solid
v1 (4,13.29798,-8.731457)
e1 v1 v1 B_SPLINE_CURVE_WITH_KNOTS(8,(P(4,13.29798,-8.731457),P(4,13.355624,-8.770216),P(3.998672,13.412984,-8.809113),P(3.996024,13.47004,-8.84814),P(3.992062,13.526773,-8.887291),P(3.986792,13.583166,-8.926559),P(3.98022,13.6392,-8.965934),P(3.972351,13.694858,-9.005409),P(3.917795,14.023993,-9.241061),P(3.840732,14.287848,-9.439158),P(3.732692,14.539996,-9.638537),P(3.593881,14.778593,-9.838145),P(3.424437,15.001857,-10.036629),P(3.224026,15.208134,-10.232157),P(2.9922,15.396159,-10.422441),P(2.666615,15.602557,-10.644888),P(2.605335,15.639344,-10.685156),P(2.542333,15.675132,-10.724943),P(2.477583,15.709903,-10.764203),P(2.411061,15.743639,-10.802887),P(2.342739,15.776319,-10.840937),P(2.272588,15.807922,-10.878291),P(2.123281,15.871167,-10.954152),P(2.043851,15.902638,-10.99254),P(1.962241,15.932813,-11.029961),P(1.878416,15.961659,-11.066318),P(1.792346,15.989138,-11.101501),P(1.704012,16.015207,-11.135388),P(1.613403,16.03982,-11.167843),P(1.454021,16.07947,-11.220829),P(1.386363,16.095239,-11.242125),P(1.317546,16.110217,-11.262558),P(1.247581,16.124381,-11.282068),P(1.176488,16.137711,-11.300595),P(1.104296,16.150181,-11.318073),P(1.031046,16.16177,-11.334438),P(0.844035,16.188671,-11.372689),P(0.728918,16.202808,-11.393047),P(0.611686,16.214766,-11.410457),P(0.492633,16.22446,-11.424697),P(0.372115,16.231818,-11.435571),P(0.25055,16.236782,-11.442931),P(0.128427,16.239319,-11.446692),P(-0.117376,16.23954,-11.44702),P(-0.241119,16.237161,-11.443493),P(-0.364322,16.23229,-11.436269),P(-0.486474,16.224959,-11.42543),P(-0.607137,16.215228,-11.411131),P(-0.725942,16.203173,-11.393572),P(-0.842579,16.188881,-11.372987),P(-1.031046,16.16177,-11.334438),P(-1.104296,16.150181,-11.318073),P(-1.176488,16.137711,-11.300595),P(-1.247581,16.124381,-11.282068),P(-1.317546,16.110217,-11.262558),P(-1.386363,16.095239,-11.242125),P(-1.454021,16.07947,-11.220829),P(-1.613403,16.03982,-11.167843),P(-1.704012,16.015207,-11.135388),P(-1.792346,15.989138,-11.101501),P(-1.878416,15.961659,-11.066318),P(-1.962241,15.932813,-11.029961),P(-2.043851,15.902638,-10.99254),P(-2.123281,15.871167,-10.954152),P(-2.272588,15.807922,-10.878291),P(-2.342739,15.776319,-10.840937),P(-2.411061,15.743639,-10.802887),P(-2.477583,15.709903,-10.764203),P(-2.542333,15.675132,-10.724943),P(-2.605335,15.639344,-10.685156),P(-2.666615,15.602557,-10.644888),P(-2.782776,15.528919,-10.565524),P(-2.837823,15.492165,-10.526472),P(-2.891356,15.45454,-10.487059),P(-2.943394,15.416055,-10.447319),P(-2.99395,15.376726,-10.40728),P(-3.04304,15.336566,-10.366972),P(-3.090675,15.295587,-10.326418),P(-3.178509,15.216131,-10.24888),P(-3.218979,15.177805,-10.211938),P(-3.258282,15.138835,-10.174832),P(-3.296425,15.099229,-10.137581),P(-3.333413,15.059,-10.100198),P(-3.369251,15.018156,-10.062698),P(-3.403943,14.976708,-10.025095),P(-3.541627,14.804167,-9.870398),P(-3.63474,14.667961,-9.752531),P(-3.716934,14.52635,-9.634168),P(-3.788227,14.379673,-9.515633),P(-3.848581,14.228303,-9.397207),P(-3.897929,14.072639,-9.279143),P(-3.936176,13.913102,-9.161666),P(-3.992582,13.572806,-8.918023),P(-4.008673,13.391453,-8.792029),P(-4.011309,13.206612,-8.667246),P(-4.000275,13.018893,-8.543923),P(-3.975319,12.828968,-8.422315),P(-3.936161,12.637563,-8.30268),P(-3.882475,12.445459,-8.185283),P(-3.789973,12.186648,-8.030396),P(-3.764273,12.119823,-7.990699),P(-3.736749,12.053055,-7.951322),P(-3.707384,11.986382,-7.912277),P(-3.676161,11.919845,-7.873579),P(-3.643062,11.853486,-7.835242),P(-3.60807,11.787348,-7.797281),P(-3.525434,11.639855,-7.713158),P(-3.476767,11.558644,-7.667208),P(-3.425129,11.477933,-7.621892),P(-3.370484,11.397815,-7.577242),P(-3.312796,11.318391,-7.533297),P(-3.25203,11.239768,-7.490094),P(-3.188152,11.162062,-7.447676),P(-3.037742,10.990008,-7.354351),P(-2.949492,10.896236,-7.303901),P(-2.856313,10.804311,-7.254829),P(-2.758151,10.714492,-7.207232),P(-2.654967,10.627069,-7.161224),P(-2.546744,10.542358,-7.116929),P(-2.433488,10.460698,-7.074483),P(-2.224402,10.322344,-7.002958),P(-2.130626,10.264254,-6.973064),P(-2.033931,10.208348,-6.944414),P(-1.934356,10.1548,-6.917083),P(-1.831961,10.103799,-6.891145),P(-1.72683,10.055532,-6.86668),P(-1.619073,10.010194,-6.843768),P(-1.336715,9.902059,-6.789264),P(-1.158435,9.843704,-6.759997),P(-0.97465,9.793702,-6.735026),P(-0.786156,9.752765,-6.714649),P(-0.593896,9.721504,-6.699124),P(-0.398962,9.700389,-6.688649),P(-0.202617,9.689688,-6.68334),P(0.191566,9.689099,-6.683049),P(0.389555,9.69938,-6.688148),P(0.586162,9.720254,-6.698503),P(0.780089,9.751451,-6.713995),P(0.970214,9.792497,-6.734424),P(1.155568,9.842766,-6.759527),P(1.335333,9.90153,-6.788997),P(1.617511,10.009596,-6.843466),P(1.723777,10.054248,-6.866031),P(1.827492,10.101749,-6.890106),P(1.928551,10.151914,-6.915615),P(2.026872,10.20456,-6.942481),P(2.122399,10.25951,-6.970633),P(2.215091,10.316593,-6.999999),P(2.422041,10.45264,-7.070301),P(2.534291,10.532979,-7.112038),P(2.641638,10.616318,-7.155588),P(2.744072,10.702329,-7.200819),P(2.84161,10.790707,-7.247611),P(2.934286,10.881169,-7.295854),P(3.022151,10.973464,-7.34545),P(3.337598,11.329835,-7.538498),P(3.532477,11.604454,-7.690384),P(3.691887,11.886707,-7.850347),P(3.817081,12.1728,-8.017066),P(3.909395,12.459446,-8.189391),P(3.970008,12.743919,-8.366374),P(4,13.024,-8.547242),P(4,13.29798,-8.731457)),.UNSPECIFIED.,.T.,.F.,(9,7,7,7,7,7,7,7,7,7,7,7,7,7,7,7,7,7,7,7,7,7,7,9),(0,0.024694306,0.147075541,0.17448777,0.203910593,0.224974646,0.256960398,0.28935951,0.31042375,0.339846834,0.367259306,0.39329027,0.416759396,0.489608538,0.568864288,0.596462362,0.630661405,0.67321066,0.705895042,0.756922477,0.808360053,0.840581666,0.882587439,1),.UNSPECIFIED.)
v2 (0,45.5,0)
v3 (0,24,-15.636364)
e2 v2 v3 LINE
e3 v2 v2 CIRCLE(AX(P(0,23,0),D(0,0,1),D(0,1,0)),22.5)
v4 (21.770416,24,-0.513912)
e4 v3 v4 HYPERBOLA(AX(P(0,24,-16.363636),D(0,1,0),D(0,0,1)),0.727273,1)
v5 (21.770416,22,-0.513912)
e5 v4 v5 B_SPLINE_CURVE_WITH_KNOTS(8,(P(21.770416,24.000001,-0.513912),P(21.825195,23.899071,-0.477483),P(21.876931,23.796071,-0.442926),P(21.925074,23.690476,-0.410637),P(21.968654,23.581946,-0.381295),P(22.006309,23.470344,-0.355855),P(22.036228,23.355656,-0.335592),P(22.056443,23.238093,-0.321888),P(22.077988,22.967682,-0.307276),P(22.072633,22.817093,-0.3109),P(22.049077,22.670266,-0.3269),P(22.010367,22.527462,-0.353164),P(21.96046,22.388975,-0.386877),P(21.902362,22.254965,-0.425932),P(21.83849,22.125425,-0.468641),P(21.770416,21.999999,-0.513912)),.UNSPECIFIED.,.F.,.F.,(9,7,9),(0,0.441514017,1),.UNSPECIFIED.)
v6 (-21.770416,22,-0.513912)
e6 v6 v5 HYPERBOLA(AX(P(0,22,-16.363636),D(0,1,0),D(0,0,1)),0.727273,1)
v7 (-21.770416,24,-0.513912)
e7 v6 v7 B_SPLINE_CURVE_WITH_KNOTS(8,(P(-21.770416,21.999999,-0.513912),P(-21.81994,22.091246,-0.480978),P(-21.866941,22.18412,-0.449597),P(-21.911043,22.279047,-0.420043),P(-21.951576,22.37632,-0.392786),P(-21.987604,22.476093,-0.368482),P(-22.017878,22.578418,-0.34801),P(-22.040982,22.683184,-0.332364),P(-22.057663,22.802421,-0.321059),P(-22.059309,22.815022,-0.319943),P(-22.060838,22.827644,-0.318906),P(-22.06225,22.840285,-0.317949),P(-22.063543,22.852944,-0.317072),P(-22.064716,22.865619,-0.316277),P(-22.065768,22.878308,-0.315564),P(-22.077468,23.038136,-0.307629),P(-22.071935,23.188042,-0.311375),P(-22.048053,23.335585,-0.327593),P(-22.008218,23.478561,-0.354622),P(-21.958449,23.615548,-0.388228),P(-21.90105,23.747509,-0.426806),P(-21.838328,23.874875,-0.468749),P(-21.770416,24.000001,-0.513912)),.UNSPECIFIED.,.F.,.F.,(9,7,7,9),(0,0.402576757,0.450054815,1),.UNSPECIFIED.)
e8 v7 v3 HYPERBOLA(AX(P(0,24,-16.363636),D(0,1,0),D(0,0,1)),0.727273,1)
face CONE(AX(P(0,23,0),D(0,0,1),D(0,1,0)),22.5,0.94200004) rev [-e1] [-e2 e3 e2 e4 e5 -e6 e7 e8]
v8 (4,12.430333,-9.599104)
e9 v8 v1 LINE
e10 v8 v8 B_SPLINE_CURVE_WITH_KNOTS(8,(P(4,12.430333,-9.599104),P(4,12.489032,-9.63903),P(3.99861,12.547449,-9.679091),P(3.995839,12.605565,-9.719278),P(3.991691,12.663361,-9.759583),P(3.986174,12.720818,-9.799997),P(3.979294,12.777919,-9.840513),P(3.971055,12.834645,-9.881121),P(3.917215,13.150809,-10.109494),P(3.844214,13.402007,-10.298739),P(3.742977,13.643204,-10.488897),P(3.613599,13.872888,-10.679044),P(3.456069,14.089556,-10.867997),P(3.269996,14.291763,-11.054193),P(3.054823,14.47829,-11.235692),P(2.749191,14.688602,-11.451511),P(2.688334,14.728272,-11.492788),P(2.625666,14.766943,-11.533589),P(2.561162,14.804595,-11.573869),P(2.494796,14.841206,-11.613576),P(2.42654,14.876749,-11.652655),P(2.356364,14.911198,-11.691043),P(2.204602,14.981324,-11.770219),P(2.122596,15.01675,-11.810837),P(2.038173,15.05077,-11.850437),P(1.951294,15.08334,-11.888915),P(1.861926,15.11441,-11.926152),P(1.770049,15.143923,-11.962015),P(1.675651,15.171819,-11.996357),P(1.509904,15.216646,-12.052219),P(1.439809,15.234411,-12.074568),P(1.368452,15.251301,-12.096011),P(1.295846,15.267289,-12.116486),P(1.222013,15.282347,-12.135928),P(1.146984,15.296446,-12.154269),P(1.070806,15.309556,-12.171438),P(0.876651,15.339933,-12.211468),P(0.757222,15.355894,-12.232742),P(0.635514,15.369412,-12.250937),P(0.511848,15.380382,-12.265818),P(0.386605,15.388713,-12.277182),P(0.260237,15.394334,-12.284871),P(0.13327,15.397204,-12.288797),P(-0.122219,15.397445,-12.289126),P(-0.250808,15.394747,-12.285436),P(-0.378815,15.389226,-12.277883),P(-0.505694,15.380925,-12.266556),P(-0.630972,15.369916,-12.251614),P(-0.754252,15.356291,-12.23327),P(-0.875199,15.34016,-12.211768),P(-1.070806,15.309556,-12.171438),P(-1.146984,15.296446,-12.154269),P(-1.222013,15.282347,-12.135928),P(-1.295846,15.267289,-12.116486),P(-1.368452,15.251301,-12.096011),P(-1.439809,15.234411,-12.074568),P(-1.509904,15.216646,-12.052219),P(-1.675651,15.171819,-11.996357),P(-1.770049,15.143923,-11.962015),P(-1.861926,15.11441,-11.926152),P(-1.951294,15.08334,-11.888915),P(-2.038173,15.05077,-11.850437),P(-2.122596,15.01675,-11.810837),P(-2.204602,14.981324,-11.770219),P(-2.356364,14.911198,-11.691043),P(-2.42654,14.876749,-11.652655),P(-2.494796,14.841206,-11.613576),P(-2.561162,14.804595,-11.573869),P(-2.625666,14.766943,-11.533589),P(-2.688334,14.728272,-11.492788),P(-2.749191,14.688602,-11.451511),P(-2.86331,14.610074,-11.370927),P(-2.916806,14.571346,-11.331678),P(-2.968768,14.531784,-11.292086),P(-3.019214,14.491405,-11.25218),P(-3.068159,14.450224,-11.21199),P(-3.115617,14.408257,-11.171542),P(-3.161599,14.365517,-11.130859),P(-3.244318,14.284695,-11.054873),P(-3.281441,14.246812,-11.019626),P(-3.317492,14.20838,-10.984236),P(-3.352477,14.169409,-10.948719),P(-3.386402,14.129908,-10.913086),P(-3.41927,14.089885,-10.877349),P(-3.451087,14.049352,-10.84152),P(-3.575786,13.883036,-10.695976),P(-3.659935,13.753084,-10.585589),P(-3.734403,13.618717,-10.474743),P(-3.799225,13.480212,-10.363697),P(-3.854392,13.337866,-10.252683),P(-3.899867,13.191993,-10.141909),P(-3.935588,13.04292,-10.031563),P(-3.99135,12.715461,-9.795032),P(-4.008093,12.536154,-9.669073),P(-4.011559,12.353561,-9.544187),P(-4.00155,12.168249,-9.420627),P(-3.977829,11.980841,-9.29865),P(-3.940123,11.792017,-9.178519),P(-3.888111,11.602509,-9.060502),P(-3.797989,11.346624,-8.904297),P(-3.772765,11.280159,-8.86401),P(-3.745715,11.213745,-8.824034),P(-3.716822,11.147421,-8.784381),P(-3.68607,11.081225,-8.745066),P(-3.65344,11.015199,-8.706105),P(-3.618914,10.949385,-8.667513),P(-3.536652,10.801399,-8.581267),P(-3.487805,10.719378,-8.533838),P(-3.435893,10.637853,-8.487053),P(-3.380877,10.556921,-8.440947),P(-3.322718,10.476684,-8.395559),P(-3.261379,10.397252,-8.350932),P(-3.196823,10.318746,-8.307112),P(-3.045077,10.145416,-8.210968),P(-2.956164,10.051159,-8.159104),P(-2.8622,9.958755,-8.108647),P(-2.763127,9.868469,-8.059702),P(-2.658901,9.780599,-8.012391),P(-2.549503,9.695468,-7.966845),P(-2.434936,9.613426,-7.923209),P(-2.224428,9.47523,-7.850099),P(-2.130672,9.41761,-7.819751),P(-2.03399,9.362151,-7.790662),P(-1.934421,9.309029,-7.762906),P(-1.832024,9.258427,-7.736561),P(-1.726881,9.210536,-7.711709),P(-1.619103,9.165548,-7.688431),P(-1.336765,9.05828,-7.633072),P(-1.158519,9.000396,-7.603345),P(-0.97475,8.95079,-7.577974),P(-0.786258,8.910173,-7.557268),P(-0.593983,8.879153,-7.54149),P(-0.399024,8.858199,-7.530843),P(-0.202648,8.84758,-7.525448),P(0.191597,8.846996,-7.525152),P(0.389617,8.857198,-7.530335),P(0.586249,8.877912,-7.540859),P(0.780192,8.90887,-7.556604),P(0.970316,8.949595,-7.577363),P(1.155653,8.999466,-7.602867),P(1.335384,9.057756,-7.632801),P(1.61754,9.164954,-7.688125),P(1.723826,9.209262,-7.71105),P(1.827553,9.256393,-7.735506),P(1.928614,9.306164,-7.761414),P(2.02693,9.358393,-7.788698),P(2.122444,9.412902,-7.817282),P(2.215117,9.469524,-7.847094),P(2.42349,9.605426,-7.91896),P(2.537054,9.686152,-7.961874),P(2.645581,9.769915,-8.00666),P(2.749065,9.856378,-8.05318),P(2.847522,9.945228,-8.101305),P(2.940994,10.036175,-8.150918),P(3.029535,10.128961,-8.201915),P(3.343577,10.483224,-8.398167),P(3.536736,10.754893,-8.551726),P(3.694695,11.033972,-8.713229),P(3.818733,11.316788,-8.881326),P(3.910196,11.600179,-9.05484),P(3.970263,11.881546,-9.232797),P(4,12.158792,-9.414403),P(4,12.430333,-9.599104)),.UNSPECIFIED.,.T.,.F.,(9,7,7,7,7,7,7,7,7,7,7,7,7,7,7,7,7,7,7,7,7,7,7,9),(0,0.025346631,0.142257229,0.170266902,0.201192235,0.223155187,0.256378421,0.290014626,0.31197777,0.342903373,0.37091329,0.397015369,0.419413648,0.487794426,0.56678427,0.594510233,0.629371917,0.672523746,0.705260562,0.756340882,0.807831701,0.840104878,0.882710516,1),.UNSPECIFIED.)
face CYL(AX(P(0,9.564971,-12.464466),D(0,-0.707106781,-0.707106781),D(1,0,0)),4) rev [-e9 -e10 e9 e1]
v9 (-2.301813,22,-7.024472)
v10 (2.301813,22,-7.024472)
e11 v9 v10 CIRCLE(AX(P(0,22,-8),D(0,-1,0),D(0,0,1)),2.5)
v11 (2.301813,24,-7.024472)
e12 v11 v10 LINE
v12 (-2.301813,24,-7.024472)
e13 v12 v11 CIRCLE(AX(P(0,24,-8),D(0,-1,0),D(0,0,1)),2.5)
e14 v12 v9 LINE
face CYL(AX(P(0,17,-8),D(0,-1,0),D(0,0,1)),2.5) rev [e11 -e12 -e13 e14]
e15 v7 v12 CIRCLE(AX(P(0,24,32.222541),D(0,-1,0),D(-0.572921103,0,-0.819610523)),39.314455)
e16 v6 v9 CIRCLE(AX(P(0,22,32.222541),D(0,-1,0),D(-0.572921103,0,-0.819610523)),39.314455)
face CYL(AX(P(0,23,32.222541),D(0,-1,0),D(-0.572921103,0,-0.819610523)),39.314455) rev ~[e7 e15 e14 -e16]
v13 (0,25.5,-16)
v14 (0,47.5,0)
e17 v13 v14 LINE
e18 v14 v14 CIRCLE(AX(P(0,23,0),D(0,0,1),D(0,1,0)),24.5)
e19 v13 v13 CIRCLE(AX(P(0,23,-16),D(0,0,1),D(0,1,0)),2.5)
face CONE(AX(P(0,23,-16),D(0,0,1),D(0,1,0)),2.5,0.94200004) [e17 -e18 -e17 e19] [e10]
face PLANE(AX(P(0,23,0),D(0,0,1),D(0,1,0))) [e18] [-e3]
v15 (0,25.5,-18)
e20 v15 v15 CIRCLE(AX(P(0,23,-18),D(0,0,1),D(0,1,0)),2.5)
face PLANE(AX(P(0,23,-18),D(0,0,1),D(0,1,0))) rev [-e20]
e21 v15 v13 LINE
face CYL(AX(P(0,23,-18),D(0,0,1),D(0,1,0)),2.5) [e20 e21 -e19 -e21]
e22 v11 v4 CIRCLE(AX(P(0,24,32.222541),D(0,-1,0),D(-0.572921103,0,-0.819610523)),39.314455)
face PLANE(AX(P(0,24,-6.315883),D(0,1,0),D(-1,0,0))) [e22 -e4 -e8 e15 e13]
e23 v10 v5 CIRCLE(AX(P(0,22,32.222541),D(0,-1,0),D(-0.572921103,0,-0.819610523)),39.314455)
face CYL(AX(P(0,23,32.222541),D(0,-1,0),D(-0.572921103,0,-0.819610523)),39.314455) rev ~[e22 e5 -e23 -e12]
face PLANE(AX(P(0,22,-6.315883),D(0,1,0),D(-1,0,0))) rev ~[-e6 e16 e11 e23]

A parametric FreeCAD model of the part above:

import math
import FreeCAD as App
import Part
import Sketcher

V = App.Vector

doc = App.newDocument("Part")
body = doc.addObject("PartDesign::Body", "Body")

# Sketch on XY plane
sketch1 = body.newObject("Sketcher::SketchObject", "Sketch")
sketch1.AttachmentSupport = (doc.getObject("XY_Plane"), [""])
sketch1.MapMode = "FlatFace"
sketch1.addGeometry(Part.Circle(V(0, 0, 0), V(0, 0, 1), 4), False)
sketch1.addConstraint([
    Sketcher.Constraint("Coincident", 0, 3, -1, 1),
    Sketcher.Constraint("Diameter", 0, 8.0),
])
pad1 = body.newObject("PartDesign::Pad", "Pad")
pad1.Profile = sketch1
pad1.Length = 10
body2 = doc.addObject("PartDesign::Body", "Body001")
doc.recompute()

body.Placement = App.Placement(V(0, -13.435029, 5.535534), App.Rotation(V(-1, 0, 0), 45))
boolean = body2.newObject("PartDesign::Boolean", "Boolean")
boolean.Type = "Fuse"
boolean.addObjects([body])
body3 = doc.addObject("PartDesign::Body", "Body002")

# Sketch on XZ plane
sketch2 = body3.newObject("Sketcher::SketchObject", "Sketch001")
sketch2.AttachmentSupport = (doc.getObject("XZ_Plane002"), [""])
sketch2.MapMode = "FlatFace"
sketch2.AttachmentOffset = App.Placement(V(0, 0, 6), App.Rotation())
sketch2.addGeometry(Part.Circle(V(0, 10, 0), V(0, 0, 1), 2.5), False)
sketch2.addConstraint([
    Sketcher.Constraint("PointOnObject", 0, 3, -2),
    Sketcher.Constraint("Diameter", 0, 5.0),
    Sketcher.Constraint("DistanceY", -1, 1, 0, 3, 10.0),
])
pad2 = body3.newObject("PartDesign::Pad", "Pad001")
pad2.Profile = sketch2
pad2.Length = 10
pad2.Reversed = True
body4 = doc.addObject("PartDesign::Body", "Body003")

# Sketch on XZ plane
sketch3 = body4.newObject("Sketcher::SketchObject", "Sketch002")
sketch3.AttachmentSupport = (doc.getObject("XZ_Plane003"), [""])
sketch3.MapMode = "FlatFace"
sketch3.addGeometry([
    Part.LineSegment(V(0.5, 2, 0), V(22.5, 18, 0)),
    Part.ArcOfCircle(Part.Circle(V(0, 50.2, 0), V(0, 0, 1), 39.3), math.radians(-125), math.radians(-55)),
    Part.LineSegment(V(-22.5, 18, 0), V(-0.5, 2, 0)),
    Part.LineSegment(V(-0.5, 2, 0), V(0.5, 2, 0)),
], False)
sketch3.addConstraint([
    Sketcher.Constraint("Coincident", 0, 2, 1, 2),
    Sketcher.Constraint("Coincident", 1, 1, 2, 1),
    Sketcher.Constraint("Coincident", 2, 2, 3, 1),
    Sketcher.Constraint("Coincident", 3, 2, 0, 1),
    Sketcher.Constraint("Horizontal", 3),
    Sketcher.Constraint("Symmetric", 0, 2, 1, 1, -2),
    Sketcher.Constraint("Equal", 0, 2),
    Sketcher.Constraint("DistanceX", 3, 1, 3, 2, 1.0),
    Sketcher.Constraint("DistanceY", -1, 1, 0, 2, 18.0),
    Sketcher.Constraint("DistanceY", -1, 1, 2, 2, 2.0),
    Sketcher.Constraint("Radius", 1, 39.314455),
    Sketcher.Constraint("Distance", 0, 27.22242),
])
pad3 = body4.newObject("PartDesign::Pad", "Pad002")
pad3.Profile = sketch3
pad3.Length = 2
pad3.Midplane = True
doc.recompute()

boolean2 = body4.newObject("PartDesign::Boolean", "Boolean001")
boolean2.Type = "Cut"
boolean2.addObjects([body3])
body5 = doc.addObject("PartDesign::Body", "Body004")

# Sketch on YZ plane
sketch4 = body5.newObject("Sketcher::SketchObject", "Sketch003")
sketch4.AttachmentSupport = (doc.getObject("YZ_Plane004"), [""])
sketch4.MapMode = "FlatFace"
sketch4.addGeometry([
    Part.LineSegment(V(0, 2, 0), V(0, 0, 0)),  # 0
    Part.LineSegment(V(0, 0, 0), V(2.5, 0, 0)),  # 1
    Part.LineSegment(V(2.5, 0, 0), V(2.5, 2, 0)),  # 2
    Part.LineSegment(V(2.5, 2, 0), V(24.5, 18, 0)),  # 3
    Part.LineSegment(V(24.5, 18, 0), V(22.5, 18, 0)),  # 4
    Part.LineSegment(V(22.5, 18, 0), V(0.5, 2, 0)),  # 5
    Part.LineSegment(V(0.5, 2, 0), V(0, 2, 0)),  # 6
], False)
sketch4.addConstraint([
    Sketcher.Constraint("Coincident", 0, 2, 1, 1),
    Sketcher.Constraint("Coincident", 1, 2, 2, 1),
    Sketcher.Constraint("Coincident", 2, 2, 3, 1),
    Sketcher.Constraint("Coincident", 3, 2, 4, 1),
    Sketcher.Constraint("Coincident", 4, 2, 5, 1),
    Sketcher.Constraint("Coincident", 5, 2, 6, 1),
    Sketcher.Constraint("Coincident", 6, 2, 0, 1),
    Sketcher.Constraint("Vertical", 0),
    Sketcher.Constraint("Horizontal", 1),
    Sketcher.Constraint("Vertical", 2),
    Sketcher.Constraint("Horizontal", 4),
    Sketcher.Constraint("Horizontal", 6),
    Sketcher.Constraint("Coincident", 0, 2, -1, 1),
    Sketcher.Constraint("Parallel", 3, 5),
    Sketcher.Constraint("Horizontal", 2, 2, 5, 2),
    Sketcher.Constraint("Equal", 4, 0),
    Sketcher.Constraint("DistanceX", 4, 2, 4, 1, 2.0),
    Sketcher.Constraint("DistanceX", 1, 1, 1, 2, 2.5),
    Sketcher.Constraint("DistanceY", -1, 1, 3, 2, 18.0),
    Sketcher.Constraint("DistanceX", 2, 2, 3, 2, 22.0),
])
revolution = body5.newObject("PartDesign::Revolution", "Revolution")
revolution.Profile = sketch4
revolution.ReferenceAxis = (sketch4, ["V_Axis"])
revolution.Angle = 360
doc.recompute()

boolean3 = body5.newObject("PartDesign::Boolean", "Boolean002")
boolean3.Type = "Fuse"
boolean3.addObjects([body4])
doc.recompute()

boolean4 = body5.newObject("PartDesign::Boolean", "Boolean003")
boolean4.Type = "Cut"
boolean4.addObjects([body2])
body6 = doc.addObject("PartDesign::Body", "Body005")
doc.recompute()

body5.Placement = App.Placement(V(0, -27, -18), App.Rotation(V(0, 0, 1), 0))
boolean5 = body6.newObject("PartDesign::Boolean", "Boolean004")
boolean5.Type = "Fuse"
boolean5.addObjects([body5])
body7 = doc.addObject("PartDesign::Body", "Body006")
doc.recompute()

body6.Placement = App.Placement(V(0, 50, 0), App.Rotation(V(0, 0, 1), 0))
boolean6 = body7.newObject("PartDesign::Boolean", "Boolean005")
boolean6.Type = "Fuse"
boolean6.addObjects([body6])

doc.recompute()
